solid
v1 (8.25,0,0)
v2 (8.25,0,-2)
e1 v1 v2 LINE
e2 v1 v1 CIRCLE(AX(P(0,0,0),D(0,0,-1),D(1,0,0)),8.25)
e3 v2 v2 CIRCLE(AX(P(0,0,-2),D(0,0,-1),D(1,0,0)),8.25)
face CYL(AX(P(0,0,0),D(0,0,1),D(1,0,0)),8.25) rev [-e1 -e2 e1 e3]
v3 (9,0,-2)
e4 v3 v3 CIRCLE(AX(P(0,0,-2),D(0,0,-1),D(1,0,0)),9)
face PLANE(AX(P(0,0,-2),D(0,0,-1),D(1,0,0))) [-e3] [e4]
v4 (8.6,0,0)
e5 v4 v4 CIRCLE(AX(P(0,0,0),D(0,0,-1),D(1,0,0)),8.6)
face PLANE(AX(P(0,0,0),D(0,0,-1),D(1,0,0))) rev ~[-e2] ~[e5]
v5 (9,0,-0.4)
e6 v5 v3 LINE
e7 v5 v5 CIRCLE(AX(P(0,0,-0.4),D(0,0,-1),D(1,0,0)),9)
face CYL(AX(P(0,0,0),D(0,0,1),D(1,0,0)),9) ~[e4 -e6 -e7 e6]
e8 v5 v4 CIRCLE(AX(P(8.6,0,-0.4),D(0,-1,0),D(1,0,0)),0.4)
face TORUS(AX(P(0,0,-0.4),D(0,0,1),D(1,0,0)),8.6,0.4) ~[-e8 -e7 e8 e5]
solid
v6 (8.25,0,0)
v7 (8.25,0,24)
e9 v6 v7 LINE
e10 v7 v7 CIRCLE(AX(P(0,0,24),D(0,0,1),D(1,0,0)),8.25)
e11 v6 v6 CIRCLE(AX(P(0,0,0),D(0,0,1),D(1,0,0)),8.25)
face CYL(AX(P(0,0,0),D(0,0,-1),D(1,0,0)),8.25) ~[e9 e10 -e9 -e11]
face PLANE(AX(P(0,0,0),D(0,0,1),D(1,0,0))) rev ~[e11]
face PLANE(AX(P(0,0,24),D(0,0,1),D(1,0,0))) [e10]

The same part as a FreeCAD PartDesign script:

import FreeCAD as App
import Part
import Sketcher
from FreeCAD import Vector


def edges_at(feature, points):
    """Names of the edges that pass closest to the given points."""
    edges = feature.Shape.Edges
    near = lambda p: min(range(len(edges)), key=lambda i: edges[i].distToShape(Part.Vertex(*p))[0])
    return sorted({f"Edge{near(p) + 1}" for p in points})

doc = App.newDocument("Part")
body = doc.addObject("PartDesign::Body", "Body")

sketch1 = body.newObject("Sketcher::SketchObject", "Sketch")
sketch1.AttachmentSupport = (doc.getObject("XY_Plane"), [""])
sketch1.MapMode = "FlatFace"
sketch1.addGeometry(Part.Circle(Vector(0, 0, 0), Vector(0, 0, 1), 8), False)
sketch1.addConstraint([
    Sketcher.Constraint("Coincident", 0, 3, -1, 1),
    Sketcher.Constraint("Diameter", 0, 16.5),
])
pad1 = body.newObject("PartDesign::Pad", "Pad")
pad1.Profile = sketch1
pad1.Length = 24
body2 = doc.addObject("PartDesign::Body", "Body001")

sketch2 = body2.newObject("Sketcher::SketchObject", "Sketch001")
sketch2.AttachmentSupport = (doc.getObject("XY_Plane001"), [""])
sketch2.MapMode = "FlatFace"
sketch2.addGeometry([
    Part.Circle(Vector(0, 0, 0), Vector(0, 0, 1), 9),
    Part.Circle(Vector(0, 0, 0), Vector(0, 0, 1), 8),
], False)
sketch2.addConstraint([
    Sketcher.Constraint("Coincident", 0, 3, -1, 1),
    Sketcher.Constraint("Coincident", 1, 3, -1, 1),
    Sketcher.Constraint("Diameter", 0, 18.0),
    Sketcher.Constraint("Diameter", 1, 16.5),
])
pad2 = body2.newObject("PartDesign::Pad", "Pad001")
pad2.Profile = sketch2
pad2.Length = 2
pad2.Reversed = True
doc.recompute()

fillet = body2.newObject("PartDesign::Fillet", "Fillet")
fillet.Base = (pad2, edges_at(pad2, [(-9, 0, 0)]))
fillet.Radius = 0.4

doc.recompute()
